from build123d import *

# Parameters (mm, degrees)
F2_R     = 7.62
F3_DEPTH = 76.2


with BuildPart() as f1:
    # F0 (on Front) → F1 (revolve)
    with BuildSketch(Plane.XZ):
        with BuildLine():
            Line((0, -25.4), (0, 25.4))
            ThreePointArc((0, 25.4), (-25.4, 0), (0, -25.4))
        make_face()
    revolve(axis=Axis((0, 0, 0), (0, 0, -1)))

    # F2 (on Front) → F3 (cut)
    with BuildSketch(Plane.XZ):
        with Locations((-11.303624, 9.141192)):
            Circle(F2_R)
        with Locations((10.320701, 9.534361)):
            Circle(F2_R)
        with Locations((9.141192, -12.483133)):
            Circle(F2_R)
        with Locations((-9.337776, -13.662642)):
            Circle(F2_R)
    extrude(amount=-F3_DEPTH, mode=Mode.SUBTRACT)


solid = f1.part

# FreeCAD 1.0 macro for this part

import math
import FreeCAD as App
import Part
import Sketcher

V = App.Vector
Q = App.Units.Quantity

doc = App.newDocument("Part")
params = doc.addObject("Spreadsheet::Sheet", "Params")
for row, (alias, value) in enumerate([
    ("sketch1_radius", "1 in"),
    ("revolution_angle", "360 deg"),
    ("sketch2_diameter", "0.6 in"),
    ("pocket1_length", "3 in"),
], start=1):
    params.set(f"A{row}", alias)
    params.set(f"B{row}", "=" + value)
    params.setAlias(f"B{row}", alias)

body = doc.addObject("PartDesign::Body", "Body")

# Sketch on XZ plane
sketch1 = body.newObject("Sketcher::SketchObject", "Sketch")
sketch1.AttachmentSupport = (doc.getObject("XZ_Plane"), [""])
sketch1.MapMode = "FlatFace"
sketch1.addGeometry([
    Part.LineSegment(V(0, -25, 0), V(0, 25, 0)),
    Part.ArcOfCircle(Part.Circle(V(0, 0, 0), V(0, 0, 1), 25), math.radians(90), math.radians(270)),
], False)
sketch1.addConstraint([
    Sketcher.Constraint("Coincident", 0, 1, 1, 2),
    Sketcher.Constraint("Coincident", 1, 1, 0, 2),
    Sketcher.Constraint("Vertical", 0),
    Sketcher.Constraint("Coincident", 1, 3, -1, 1),
    Sketcher.Constraint("PointOnObject", 0, 1, -2),
    Sketcher.Constraint("Radius", 1, Q("1 in")),
])
sketch1.setExpression("Constraints[5]", "Params.sketch1_radius")
revolution = body.newObject("PartDesign::Revolution", "Revolution")
revolution.Profile = sketch1
revolution.ReferenceAxis = (sketch1, ["V_Axis"])
revolution.setExpression("Angle", "Params.revolution_angle")

# Sketch on XZ plane
sketch2 = body.newObject("Sketcher::SketchObject", "Sketch001")
sketch2.AttachmentSupport = (doc.getObject("XZ_Plane"), [""])
sketch2.MapMode = "FlatFace"
sketch2.addGeometry([
    Part.Circle(V(-11, 9, 0), V(0, 0, 1), 8),
    Part.Circle(V(10, 10, 0), V(0, 0, 1), 8),
    Part.Circle(V(9, -12, 0), V(0, 0, 1), 8),
    Part.Circle(V(-9, -14, 0), V(0, 0, 1), 8),
], False)
sketch2.addConstraint([
    Sketcher.Constraint("Equal", 0, 1),
    Sketcher.Constraint("Equal", 1, 2),
    Sketcher.Constraint("Equal", 2, 3),
    Sketcher.Constraint("Diameter", 0, Q("0.6 in")),
    Sketcher.Constraint("DistanceX", -1, 1, 1, 3, 10.320701),
    Sketcher.Constraint("DistanceY", -1, 1, 1, 3, 9.534361),
    Sketcher.Constraint("DistanceY", 0, 3, 1, 3, 0.393169),
    Sketcher.Constraint("DistanceX", 2, 3, 1, 3, 1.179509),
    Sketcher.Constraint("DistanceX", 3, 3, 2, 3, 18.478968),
    Sketcher.Constraint("DistanceY", 3, 3, 2, 3, 1.179509),
    Sketcher.Constraint("DistanceX", 0, 3, -1, 1, 11.303624),
    Sketcher.Constraint("DistanceY", 2, 3, -1, 1, 12.483133),
])
sketch2.setExpression("Constraints[3]", "Params.sketch2_diameter")
pocket1 = body.newObject("PartDesign::Pocket", "Pocket")
pocket1.Profile = sketch2
pocket1.setExpression("Length", "Params.pocket1_length")

doc.recompute()
